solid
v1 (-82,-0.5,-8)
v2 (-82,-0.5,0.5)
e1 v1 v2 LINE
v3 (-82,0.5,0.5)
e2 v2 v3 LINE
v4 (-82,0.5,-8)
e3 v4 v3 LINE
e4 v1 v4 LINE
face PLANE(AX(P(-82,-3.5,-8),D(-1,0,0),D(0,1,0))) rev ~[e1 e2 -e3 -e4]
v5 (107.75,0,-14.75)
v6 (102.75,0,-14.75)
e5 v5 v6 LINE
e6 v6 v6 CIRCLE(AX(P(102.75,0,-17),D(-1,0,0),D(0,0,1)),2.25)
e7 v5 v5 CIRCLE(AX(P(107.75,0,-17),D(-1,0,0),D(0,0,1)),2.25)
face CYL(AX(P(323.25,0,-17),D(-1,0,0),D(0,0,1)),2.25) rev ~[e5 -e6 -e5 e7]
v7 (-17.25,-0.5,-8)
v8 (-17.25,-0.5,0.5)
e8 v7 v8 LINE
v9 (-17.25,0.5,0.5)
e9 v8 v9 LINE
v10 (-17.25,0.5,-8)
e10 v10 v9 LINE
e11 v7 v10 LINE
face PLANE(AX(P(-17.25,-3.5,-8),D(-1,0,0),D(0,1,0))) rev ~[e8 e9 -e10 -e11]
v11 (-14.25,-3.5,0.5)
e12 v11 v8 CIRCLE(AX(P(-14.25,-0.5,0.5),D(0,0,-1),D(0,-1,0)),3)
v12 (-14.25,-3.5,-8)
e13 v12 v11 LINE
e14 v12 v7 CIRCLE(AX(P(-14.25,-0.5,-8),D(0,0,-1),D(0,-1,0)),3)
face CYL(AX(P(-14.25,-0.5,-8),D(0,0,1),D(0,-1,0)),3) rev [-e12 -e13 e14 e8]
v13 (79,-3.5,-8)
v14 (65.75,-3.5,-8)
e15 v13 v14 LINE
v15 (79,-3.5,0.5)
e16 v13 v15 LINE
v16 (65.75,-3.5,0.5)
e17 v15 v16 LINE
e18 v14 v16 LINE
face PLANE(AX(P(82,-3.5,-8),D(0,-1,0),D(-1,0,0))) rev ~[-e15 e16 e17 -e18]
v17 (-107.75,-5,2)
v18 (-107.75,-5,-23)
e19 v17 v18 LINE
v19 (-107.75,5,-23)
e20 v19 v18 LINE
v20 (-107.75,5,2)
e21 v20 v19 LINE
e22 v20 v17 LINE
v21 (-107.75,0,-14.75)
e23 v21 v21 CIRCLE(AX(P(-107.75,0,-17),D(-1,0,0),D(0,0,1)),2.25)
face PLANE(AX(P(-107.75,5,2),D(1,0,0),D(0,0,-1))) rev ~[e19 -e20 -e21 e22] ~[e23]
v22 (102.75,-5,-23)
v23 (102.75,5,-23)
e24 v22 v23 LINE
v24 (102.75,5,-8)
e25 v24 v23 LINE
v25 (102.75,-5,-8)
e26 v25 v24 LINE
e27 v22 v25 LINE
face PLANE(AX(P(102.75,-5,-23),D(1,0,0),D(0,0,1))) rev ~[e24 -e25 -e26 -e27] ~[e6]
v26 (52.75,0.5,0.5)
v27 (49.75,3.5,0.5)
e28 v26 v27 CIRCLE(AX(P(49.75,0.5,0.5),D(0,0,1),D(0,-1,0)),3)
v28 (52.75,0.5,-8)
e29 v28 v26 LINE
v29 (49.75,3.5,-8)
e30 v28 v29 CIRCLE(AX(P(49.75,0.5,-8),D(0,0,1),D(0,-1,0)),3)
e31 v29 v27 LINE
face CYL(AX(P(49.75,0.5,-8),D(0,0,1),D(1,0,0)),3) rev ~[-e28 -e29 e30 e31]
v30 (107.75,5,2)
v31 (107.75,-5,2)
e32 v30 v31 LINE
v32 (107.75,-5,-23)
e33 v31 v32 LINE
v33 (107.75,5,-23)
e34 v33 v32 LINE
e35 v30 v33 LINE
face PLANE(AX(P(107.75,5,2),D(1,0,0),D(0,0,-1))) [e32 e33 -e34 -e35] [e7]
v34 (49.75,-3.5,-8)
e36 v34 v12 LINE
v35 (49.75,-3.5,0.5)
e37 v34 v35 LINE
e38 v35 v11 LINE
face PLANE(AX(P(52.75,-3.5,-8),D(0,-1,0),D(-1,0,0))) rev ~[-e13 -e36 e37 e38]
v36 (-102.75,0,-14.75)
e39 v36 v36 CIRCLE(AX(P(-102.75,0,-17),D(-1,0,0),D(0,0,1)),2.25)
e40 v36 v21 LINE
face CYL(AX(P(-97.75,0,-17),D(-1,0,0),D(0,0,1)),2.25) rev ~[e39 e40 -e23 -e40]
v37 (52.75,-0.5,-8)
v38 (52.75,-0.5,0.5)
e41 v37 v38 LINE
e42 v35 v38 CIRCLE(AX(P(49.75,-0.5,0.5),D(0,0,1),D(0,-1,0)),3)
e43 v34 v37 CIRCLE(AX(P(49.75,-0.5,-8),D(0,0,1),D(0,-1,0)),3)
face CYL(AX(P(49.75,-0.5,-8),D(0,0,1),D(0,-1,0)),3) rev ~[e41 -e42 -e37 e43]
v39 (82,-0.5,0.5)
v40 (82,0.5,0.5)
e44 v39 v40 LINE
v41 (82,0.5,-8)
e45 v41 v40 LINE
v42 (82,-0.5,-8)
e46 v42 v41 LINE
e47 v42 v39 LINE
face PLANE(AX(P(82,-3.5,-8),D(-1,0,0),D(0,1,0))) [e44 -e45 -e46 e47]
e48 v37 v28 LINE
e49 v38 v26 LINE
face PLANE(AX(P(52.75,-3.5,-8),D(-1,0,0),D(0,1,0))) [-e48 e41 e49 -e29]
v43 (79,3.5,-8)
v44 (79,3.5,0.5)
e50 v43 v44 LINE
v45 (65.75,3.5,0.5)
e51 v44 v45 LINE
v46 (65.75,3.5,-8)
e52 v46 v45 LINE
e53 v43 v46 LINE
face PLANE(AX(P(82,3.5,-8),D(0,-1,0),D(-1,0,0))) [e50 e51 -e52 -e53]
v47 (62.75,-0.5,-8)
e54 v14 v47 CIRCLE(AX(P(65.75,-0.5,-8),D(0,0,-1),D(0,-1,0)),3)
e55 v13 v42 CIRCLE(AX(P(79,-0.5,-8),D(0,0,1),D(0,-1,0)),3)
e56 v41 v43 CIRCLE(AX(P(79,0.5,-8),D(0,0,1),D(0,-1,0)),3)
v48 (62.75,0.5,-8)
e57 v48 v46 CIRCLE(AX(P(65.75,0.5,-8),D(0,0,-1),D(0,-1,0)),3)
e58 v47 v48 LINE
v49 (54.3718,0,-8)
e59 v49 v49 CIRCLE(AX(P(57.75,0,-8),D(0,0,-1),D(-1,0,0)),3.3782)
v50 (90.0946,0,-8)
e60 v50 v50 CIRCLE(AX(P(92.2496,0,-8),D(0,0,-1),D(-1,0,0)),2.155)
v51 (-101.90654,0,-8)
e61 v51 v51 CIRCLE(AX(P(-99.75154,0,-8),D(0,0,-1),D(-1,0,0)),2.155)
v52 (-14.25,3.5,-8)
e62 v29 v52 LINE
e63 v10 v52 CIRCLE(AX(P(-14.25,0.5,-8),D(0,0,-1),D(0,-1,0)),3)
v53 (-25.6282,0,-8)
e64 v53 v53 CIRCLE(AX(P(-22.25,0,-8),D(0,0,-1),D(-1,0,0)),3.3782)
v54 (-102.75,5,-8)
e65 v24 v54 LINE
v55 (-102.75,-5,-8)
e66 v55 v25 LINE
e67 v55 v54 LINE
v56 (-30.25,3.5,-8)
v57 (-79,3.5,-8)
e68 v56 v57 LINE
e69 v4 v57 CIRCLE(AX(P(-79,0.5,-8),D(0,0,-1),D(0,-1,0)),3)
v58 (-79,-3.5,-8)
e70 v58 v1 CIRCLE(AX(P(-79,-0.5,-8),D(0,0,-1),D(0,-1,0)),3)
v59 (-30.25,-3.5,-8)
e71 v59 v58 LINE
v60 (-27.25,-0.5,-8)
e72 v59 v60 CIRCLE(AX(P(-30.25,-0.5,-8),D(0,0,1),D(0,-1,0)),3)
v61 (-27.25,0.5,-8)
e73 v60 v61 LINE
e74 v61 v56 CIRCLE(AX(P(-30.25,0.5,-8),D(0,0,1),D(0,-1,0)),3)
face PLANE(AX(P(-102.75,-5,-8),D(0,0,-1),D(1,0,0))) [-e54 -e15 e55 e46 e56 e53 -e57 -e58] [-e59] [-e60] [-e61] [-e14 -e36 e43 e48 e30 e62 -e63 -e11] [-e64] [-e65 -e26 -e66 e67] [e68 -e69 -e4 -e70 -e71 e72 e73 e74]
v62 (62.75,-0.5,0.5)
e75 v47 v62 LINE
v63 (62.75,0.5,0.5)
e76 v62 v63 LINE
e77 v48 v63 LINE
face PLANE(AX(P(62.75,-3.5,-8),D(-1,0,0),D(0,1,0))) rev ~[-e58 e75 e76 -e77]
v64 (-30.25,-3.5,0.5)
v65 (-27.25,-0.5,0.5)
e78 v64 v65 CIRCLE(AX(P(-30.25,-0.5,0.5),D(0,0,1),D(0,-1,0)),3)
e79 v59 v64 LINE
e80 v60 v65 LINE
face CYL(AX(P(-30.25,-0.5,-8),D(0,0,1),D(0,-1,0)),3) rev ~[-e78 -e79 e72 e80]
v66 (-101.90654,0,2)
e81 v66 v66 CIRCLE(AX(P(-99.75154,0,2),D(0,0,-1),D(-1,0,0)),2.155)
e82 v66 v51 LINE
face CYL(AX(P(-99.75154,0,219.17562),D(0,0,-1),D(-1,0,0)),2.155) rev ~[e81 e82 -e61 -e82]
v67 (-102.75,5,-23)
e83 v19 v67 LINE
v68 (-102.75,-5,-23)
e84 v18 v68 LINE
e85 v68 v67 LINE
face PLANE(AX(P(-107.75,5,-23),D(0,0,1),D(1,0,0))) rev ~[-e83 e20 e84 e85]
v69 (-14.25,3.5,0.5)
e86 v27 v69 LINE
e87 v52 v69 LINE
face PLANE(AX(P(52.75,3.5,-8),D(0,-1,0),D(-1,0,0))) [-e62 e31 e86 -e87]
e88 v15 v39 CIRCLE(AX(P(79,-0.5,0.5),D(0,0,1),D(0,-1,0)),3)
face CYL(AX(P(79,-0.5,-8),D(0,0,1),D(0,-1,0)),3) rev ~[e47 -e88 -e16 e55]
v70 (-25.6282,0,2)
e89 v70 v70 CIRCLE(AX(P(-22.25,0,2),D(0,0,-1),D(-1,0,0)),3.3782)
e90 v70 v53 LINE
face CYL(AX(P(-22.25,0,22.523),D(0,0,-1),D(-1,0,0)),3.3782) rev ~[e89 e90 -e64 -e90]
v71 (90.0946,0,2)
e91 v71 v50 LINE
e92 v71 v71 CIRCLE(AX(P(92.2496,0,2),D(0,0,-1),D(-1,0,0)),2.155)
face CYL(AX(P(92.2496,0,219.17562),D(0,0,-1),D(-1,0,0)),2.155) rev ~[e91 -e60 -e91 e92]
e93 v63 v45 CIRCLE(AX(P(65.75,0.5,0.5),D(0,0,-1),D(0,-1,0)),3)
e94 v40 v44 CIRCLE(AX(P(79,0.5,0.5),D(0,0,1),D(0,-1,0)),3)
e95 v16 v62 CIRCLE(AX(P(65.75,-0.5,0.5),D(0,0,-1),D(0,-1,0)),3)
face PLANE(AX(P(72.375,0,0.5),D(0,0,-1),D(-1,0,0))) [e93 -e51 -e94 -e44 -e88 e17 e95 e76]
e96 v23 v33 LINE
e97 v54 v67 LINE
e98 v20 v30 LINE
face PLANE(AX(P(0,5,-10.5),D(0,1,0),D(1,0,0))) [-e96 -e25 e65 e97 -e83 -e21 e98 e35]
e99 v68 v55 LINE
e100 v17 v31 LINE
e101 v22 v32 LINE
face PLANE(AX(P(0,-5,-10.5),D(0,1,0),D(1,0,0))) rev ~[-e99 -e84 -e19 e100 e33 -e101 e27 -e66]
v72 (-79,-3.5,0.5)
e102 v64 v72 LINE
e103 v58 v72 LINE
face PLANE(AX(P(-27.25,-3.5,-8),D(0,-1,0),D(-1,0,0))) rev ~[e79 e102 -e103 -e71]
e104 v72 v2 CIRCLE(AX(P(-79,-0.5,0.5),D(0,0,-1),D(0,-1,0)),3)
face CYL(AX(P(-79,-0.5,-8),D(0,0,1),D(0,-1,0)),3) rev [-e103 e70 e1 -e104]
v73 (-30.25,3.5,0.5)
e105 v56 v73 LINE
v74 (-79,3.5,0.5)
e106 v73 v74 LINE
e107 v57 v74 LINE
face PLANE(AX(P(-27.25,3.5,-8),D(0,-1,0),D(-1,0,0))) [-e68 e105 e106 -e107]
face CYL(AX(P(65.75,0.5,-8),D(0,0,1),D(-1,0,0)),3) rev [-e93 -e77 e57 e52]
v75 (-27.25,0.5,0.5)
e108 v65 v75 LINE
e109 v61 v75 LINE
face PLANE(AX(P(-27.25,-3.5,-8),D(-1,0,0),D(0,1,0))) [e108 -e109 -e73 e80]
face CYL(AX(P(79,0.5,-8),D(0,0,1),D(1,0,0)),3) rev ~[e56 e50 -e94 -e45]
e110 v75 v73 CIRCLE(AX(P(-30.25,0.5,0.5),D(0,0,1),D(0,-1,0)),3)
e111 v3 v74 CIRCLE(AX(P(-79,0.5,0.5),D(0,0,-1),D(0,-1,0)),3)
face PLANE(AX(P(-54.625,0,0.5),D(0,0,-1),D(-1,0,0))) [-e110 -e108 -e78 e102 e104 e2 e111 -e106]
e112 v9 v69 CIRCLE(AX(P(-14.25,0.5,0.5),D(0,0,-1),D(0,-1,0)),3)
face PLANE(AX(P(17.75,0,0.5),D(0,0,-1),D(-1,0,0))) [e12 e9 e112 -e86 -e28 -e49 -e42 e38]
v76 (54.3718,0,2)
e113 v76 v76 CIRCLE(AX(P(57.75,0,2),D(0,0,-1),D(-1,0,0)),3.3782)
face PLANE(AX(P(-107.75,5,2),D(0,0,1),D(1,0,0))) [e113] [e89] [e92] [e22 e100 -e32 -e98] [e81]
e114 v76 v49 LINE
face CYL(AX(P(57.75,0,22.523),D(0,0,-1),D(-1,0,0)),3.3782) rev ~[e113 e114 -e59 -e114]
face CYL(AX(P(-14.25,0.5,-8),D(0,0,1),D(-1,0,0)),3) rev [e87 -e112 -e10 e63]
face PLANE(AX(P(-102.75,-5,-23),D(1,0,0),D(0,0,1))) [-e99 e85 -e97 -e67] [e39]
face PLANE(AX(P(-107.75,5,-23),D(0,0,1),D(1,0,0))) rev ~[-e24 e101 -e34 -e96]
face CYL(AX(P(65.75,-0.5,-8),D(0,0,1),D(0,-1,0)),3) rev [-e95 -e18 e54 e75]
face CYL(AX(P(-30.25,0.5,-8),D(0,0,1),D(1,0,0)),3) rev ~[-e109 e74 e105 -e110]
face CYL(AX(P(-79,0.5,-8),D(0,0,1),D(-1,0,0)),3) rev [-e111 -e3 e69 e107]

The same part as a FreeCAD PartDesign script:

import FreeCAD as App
import Part
import Sketcher
from FreeCAD import Vector


def edges_at(feature, points):
    """Names of the edges that pass closest to the given points."""
    edges = feature.Shape.Edges
    near = lambda p: min(range(len(edges)), key=lambda i: edges[i].distToShape(Part.Vertex(*p))[0])
    return sorted({f"Edge{near(p) + 1}" for p in points})


def add_polygon(sketch, points):
    """Adds a closed chain of lines whose ends are joined by coincident constraints."""
    first, n = sketch.GeometryCount, len(points)
    for a, b in zip(points, points[1:] + points[:1]):
        sketch.addGeometry(Part.LineSegment(App.Vector(*a, 0), App.Vector(*b, 0)), False)
    for i in range(n):
        sketch.addConstraint(Sketcher.Constraint("Coincident", first + i, 2, first + (i + 1) % n, 1))

doc = App.newDocument("Part")
body = doc.addObject("PartDesign::Body", "Body")

sketch1 = body.newObject("Sketcher::SketchObject", "Sketch")
sketch1.AttachmentSupport = (doc.getObject("XZ_Plane"), [""])
sketch1.MapMode = "FlatFace"
sketch1.AttachmentOffset = App.Placement(Vector(0, 0, -5), App.Rotation())
add_polygon(sketch1, [(-108, -23), (-108, 2), (108, 2), (108, -23)])
sketch1.addConstraint([
    Sketcher.Constraint("Vertical", 0),
    Sketcher.Constraint("Horizontal", 1),
    Sketcher.Constraint("Vertical", 2),
    Sketcher.Constraint("Horizontal", 3),
    Sketcher.Constraint("DistanceY", 0, 1, 0, 2, 25.0),
    Sketcher.Constraint("DistanceX", 1, 1, 1, 2, 215.5),
    Sketcher.Constraint("DistanceY", -1, 1, 0, 2, 2.0),
    Sketcher.Constraint("DistanceX", 0, 2, -1, 1, 107.75),
])
pad1 = body.newObject("PartDesign::Pad", "Pad")
pad1.Profile = sketch1
pad1.Length = 10

sketch2 = body.newObject("Sketcher::SketchObject", "Sketch001")
sketch2.AttachmentSupport = (doc.getObject("XZ_Plane"), [""])
sketch2.MapMode = "FlatFace"
sketch2.AttachmentOffset = App.Placement(Vector(0, 0, 5), App.Rotation())
add_polygon(sketch2, [(-103, -8), (-103, -23), (103, -23), (103, -8)])
sketch2.addConstraint([
    Sketcher.Constraint("Vertical", 0),
    Sketcher.Constraint("Horizontal", 1),
    Sketcher.Constraint("Vertical", 2),
    Sketcher.Constraint("Horizontal", 3),
    Sketcher.Constraint("DistanceY", 0, 2, 0, 1, 15.0),
    Sketcher.Constraint("DistanceX", 1, 1, 1, 2, 205.5),
    Sketcher.Constraint("DistanceY", 0, 2, -1, 1, 23.0),
    Sketcher.Constraint("DistanceX", 0, 2, -1, 1, 102.75),
])
pocket1 = body.newObject("PartDesign::Pocket", "Pocket")
pocket1.Profile = sketch2
pocket1.Type = "ThroughAll"

sketch3 = body.newObject("Sketcher::SketchObject", "Sketch002")
sketch3.AttachmentSupport = (doc.getObject("XY_Plane"), [""])
sketch3.MapMode = "FlatFace"
sketch3.AttachmentOffset = App.Placement(Vector(0, 0, -8), App.Rotation())
add_polygon(sketch3, [(53, 4), (53, -4), (-17, -4), (-17, 4)])
sketch3.addConstraint([
    Sketcher.Constraint("Vertical", 0),
    Sketcher.Constraint("Horizontal", 1),
    Sketcher.Constraint("Vertical", 2),
    Sketcher.Constraint("Horizontal", 3),
    Sketcher.Constraint("DistanceX", 1, 2, 1, 1, 70.0),
    Sketcher.Constraint("DistanceY", 0, 2, 0, 1, 7.0),
    Sketcher.Constraint("DistanceY", 0, 2, -1, 1, 3.5),
    Sketcher.Constraint("DistanceX", -1, 1, 0, 2, 52.75),
])
pocket2 = body.newObject("PartDesign::Pocket", "Pocket001")
pocket2.Profile = sketch3
pocket2.Length = 8.5
pocket2.Reversed = True

sketch4 = body.newObject("Sketcher::SketchObject", "Sketch003")
sketch4.AttachmentSupport = (doc.getObject("XY_Plane"), [""])
sketch4.MapMode = "FlatFace"
sketch4.AttachmentOffset = App.Placement(Vector(0, 0, -8), App.Rotation())
add_polygon(sketch4, [(-27, 4), (-27, -4), (-82, -4), (-82, 4)])
sketch4.addConstraint([
    Sketcher.Constraint("Vertical", 0),
    Sketcher.Constraint("Horizontal", 1),
    Sketcher.Constraint("Vertical", 2),
    Sketcher.Constraint("Horizontal", 3),
    Sketcher.Constraint("DistanceY", 0, 2, 0, 1, 7.0),
    Sketcher.Constraint("DistanceX", 1, 2, -1, 1, 82.0),
    Sketcher.Constraint("DistanceX", 1, 2, 1, 1, 54.75),
    Sketcher.Constraint("DistanceY", 0, 2, -1, 1, 3.5),
])
pocket3 = body.newObject("PartDesign::Pocket", "Pocket002")
pocket3.Profile = sketch4
pocket3.Length = 8.5
pocket3.Reversed = True

sketch5 = body.newObject("Sketcher::SketchObject", "Sketch004")
sketch5.AttachmentSupport = (doc.getObject("XY_Plane"), [""])
sketch5.MapMode = "FlatFace"
sketch5.AttachmentOffset = App.Placement(Vector(0, 0, -8), App.Rotation())
add_polygon(sketch5, [(82, 4), (82, -4), (63, -4), (63, 4)])
sketch5.addConstraint([
    Sketcher.Constraint("Vertical", 0),
    Sketcher.Constraint("Horizontal", 1),
    Sketcher.Constraint("Vertical", 2),
    Sketcher.Constraint("Horizontal", 3),
    Sketcher.Constraint("DistanceY", 0, 2, 0, 1, 7.0),
    Sketcher.Constraint("DistanceX", -1, 1, 0, 2, 82.0),
    Sketcher.Constraint("DistanceX", 1, 2, 1, 1, 19.25),
    Sketcher.Constraint("DistanceY", 0, 2, -1, 1, 3.5),
])
pocket4 = body.newObject("PartDesign::Pocket", "Pocket003")
pocket4.Profile = sketch5
pocket4.Length = 8.5
pocket4.Reversed = True

sketch6 = body.newObject("Sketcher::SketchObject", "Sketch005")
sketch6.AttachmentSupport = (doc.getObject("YZ_Plane"), [""])
sketch6.MapMode = "FlatFace"
sketch6.AttachmentOffset = App.Placement(Vector(0, 0, -102.75), App.Rotation())
sketch6.addGeometry(Part.Circle(Vector(0, -17, 0), Vector(0, 0, 1), 2.2), False)
sketch6.addConstraint([
    Sketcher.Constraint("PointOnObject", 0, 3, -2),
    Sketcher.Constraint("Diameter", 0, 4.5),
    Sketcher.Constraint("DistanceY", 0, 3, -1, 1, 17.0),
])
doc.recompute()
hole = body.newObject("PartDesign::Hole", "Hole")
hole.Profile = sketch6
hole.ThreadType = "None"
hole.Diameter = 4.5
hole.DepthType = "Dimension"
hole.Depth = 5
hole.DrillPoint = "Flat"

sketch7 = body.newObject("Sketcher::SketchObject", "Sketch006")
sketch7.AttachmentSupport = (doc.getObject("XY_Plane"), [""])
sketch7.MapMode = "FlatFace"
sketch7.AttachmentOffset = App.Placement(Vector(0, 0, 2), App.Rotation())
sketch7.addGeometry([
    Part.Circle(Vector(-99.8, 0, 0), Vector(0, 0, 1), 2.2),
    Part.Circle(Vector(92.2, 0, 0), Vector(0, 0, 1), 2.2),
], False)
sketch7.addConstraint([
    Sketcher.Constraint("Equal", 0, 1),
    Sketcher.Constraint("PointOnObject", 0, 3, -1),
    Sketcher.Constraint("PointOnObject", 1, 3, -1),
    Sketcher.Constraint("Diameter", 0, 4.31),
    Sketcher.Constraint("DistanceX", -1, 1, 1, 3, 92.2496),
    Sketcher.Constraint("DistanceX", 0, 3, -1, 1, 99.75154),
])
doc.recompute()
hole2 = body.newObject("PartDesign::Hole", "Hole001")
hole2.Profile = sketch7
hole2.ThreadType = "None"
hole2.Diameter = 4.31
hole2.DepthType = "ThroughAll"

sketch8 = body.newObject("Sketcher::SketchObject", "Sketch007")
sketch8.AttachmentSupport = (doc.getObject("XY_Plane"), [""])
sketch8.MapMode = "FlatFace"
sketch8.AttachmentOffset = App.Placement(Vector(0, 0, 2), App.Rotation())
sketch8.addGeometry([
    Part.Circle(Vector(57.8, 0, 0), Vector(0, 0, 1), 3.4),
    Part.Circle(Vector(-22.2, 0, 0), Vector(0, 0, 1), 3.4),
], False)
sketch8.addConstraint([
    Sketcher.Constraint("Equal", 0, 1),
    Sketcher.Constraint("PointOnObject", 0, 3, -1),
    Sketcher.Constraint("PointOnObject", 1, 3, -1),
    Sketcher.Constraint("DistanceX", 1, 3, 0, 3, 80.0),
    Sketcher.Constraint("Diameter", 0, 6.7564),
    Sketcher.Constraint("DistanceX", -1, 1, 0, 3, 57.75),
])
doc.recompute()
hole3 = body.newObject("PartDesign::Hole", "Hole002")
hole3.Profile = sketch8
hole3.ThreadType = "None"
hole3.Diameter = 6.7564
hole3.DepthType = "Dimension"
hole3.Depth = 20.523
hole3.DrillPoint = "Angled"
hole3.DrillPointAngle = 118

sketch9 = body.newObject("Sketcher::SketchObject", "Sketch008")
sketch9.AttachmentSupport = (doc.getObject("YZ_Plane"), [""])
sketch9.MapMode = "FlatFace"
sketch9.AttachmentOffset = App.Placement(Vector(0, 0, 107.75), App.Rotation())
sketch9.addGeometry(Part.Circle(Vector(0, -17, 0), Vector(0, 0, 1), 2.2), False)
sketch9.addConstraint([
    Sketcher.Constraint("PointOnObject", 0, 3, -2),
    Sketcher.Constraint("Diameter", 0, 4.5),
    Sketcher.Constraint("DistanceY", 0, 3, -1, 1, 17.0),
])
doc.recompute()
hole4 = body.newObject("PartDesign::Hole", "Hole003")
hole4.Profile = sketch9
hole4.ThreadType = "None"
hole4.Diameter = 4.5
hole4.DepthType = "Dimension"
hole4.Depth = 215.5
hole4.DrillPoint = "Flat"
doc.recompute()

fillet = body.newObject("PartDesign::Fillet", "Fillet")
fillet.Base = (hole4, edges_at(hole4, [
    (-17.25, 3.5, -3.75),
    (-17.25, -3.5, -3.75),
    (52.75, -3.5, -3.75),
    (52.75, 3.5, -3.75),
    (-82, 3.5, -3.75),
    (-82, -3.5, -3.75),
    (-27.25, -3.5, -3.75),
    (-27.25, 3.5, -3.75),
    (62.75, -3.5, -3.75),
    (82, -3.5, -3.75),
    (82, 3.5, -3.75),
    (62.75, 3.5, -3.75),
]))
fillet.Radius = 3

doc.recompute()
